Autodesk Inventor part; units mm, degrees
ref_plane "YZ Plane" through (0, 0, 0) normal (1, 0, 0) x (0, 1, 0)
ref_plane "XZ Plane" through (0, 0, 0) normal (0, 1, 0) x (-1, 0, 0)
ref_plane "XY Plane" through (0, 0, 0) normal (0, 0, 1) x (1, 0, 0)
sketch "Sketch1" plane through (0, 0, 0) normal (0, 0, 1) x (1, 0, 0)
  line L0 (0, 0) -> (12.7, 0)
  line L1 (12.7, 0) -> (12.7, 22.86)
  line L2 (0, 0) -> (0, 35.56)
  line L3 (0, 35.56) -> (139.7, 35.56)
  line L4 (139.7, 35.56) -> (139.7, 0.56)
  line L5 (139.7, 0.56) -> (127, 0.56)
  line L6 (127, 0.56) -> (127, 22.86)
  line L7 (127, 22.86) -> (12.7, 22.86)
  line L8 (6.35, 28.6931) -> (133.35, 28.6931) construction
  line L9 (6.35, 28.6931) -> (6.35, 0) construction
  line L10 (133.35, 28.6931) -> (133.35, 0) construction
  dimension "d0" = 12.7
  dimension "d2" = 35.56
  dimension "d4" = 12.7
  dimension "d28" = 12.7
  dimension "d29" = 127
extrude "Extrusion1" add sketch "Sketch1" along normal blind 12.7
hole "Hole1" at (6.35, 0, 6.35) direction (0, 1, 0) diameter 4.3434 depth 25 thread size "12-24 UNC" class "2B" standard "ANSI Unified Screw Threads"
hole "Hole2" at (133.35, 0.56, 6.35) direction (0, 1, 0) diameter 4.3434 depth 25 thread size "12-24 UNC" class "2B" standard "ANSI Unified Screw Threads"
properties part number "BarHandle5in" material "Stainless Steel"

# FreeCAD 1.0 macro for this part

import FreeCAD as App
import Part
import Sketcher
Q = App.Units.Quantity

doc = App.newDocument("Part")
body = doc.addObject("PartDesign::Body", "Body")

sketch1 = doc.addObject("Sketcher::SketchObject", "Sketch")
body.addObject(sketch1)
sketch1.AttachmentSupport = (doc.XY_Plane, [""])
sketch1.MapMode = "FlatFace"
sketch1.addGeometry(Part.LineSegment(App.Vector(0, 36, 0), App.Vector(0, 0, 0)), False)
sketch1.addGeometry(Part.LineSegment(App.Vector(0, 0, 0), App.Vector(13, 0, 0)), False)
sketch1.addGeometry(Part.LineSegment(App.Vector(13, 0, 0), App.Vector(13, 23, 0)), False)
sketch1.addGeometry(Part.LineSegment(App.Vector(13, 23, 0), App.Vector(127, 23, 0)), False)
sketch1.addGeometry(Part.LineSegment(App.Vector(127, 23, 0), App.Vector(127, 1, 0)), False)
sketch1.addGeometry(Part.LineSegment(App.Vector(127, 1, 0), App.Vector(140, 1, 0)), False)
sketch1.addGeometry(Part.LineSegment(App.Vector(140, 1, 0), App.Vector(140, 36, 0)), False)
sketch1.addGeometry(Part.LineSegment(App.Vector(140, 36, 0), App.Vector(0, 36, 0)), False)
sketch1.addConstraint(Sketcher.Constraint("Coincident", 0, 2, 1, 1))
sketch1.addConstraint(Sketcher.Constraint("Coincident", 1, 2, 2, 1))
sketch1.addConstraint(Sketcher.Constraint("Coincident", 2, 2, 3, 1))
sketch1.addConstraint(Sketcher.Constraint("Coincident", 3, 2, 4, 1))
sketch1.addConstraint(Sketcher.Constraint("Coincident", 4, 2, 5, 1))
sketch1.addConstraint(Sketcher.Constraint("Coincident", 5, 2, 6, 1))
sketch1.addConstraint(Sketcher.Constraint("Coincident", 6, 2, 7, 1))
sketch1.addConstraint(Sketcher.Constraint("Coincident", 7, 2, 0, 1))
sketch1.addConstraint(Sketcher.Constraint("Vertical", 0))
sketch1.addConstraint(Sketcher.Constraint("Horizontal", 1))
sketch1.addConstraint(Sketcher.Constraint("Vertical", 2))
sketch1.addConstraint(Sketcher.Constraint("Horizontal", 3))
sketch1.addConstraint(Sketcher.Constraint("Vertical", 4))
sketch1.addConstraint(Sketcher.Constraint("Horizontal", 5))
sketch1.addConstraint(Sketcher.Constraint("Vertical", 6))
sketch1.addConstraint(Sketcher.Constraint("Horizontal", 7))
sketch1.addConstraint(Sketcher.Constraint("Coincident", 0, 2, -1, 1))
sketch1.addConstraint(Sketcher.Constraint("Equal", 1, 5))
sketch1.addConstraint(Sketcher.Constraint("DistanceX", 1, 1, 1, 2, Q("0.5 in")))
sketch1.addConstraint(Sketcher.Constraint("DistanceY", 0, 2, 0, 1, Q("1.4 in")))
sketch1.addConstraint(Sketcher.Constraint("DistanceX", -1, 1, 3, 2, Q("5 in")))
sketch1.addConstraint(Sketcher.Constraint("DistanceY", 3, 2, 6, 2, Q("0.5 in")))
sketch1.addConstraint(Sketcher.Constraint("DistanceY", 4, 2, 4, 1, 22.3))
pad1 = doc.addObject("PartDesign::Pad", "Pad")
body.addObject(pad1)
pad1.Profile = sketch1
pad1.Length = Q("0.5 in")

sketch2 = doc.addObject("Sketcher::SketchObject", "Sketch001")
body.addObject(sketch2)
sketch2.AttachmentSupport = (doc.XZ_Plane, [""])
sketch2.MapMode = "FlatFace"
sketch2.addGeometry(Part.Circle(App.Vector(6.3, 6.3, 0), App.Vector(0, 0, 1), 2.2), False)
sketch2.addConstraint(Sketcher.Constraint("Diameter", 0, Q("0.171 in")))
sketch2.addConstraint(Sketcher.Constraint("DistanceX", -1, 1, 0, 3, Q("0.25 in")))
sketch2.addConstraint(Sketcher.Constraint("DistanceY", -1, 1, 0, 3, Q("0.25 in")))
doc.recompute()
hole = doc.addObject("PartDesign::Hole", "Hole")
body.addObject(hole)
hole.Profile = sketch2
hole.ThreadType = "None"
hole.Diameter = Q("0.171 in")
hole.DepthType = "Dimension"
hole.Depth = 25
hole.DrillPoint = "Flat"

sketch3 = doc.addObject("Sketcher::SketchObject", "Sketch002")
body.addObject(sketch3)
sketch3.AttachmentSupport = (doc.XZ_Plane, [""])
sketch3.MapMode = "FlatFace"
sketch3.AttachmentOffset = App.Placement(App.Vector(0, 0, -0.56), App.Rotation())
sketch3.addGeometry(Part.Circle(App.Vector(133.3, 6.3, 0), App.Vector(0, 0, 1), 2.2), False)
sketch3.addConstraint(Sketcher.Constraint("Diameter", 0, Q("0.171 in")))
sketch3.addConstraint(Sketcher.Constraint("DistanceX", -1, 1, 0, 3, Q("5.25 in")))
sketch3.addConstraint(Sketcher.Constraint("DistanceY", -1, 1, 0, 3, Q("0.25 in")))
doc.recompute()
hole2 = doc.addObject("PartDesign::Hole", "Hole001")
body.addObject(hole2)
hole2.Profile = sketch3
hole2.ThreadType = "None"
hole2.Diameter = Q("0.171 in")
hole2.DepthType = "Dimension"
hole2.Depth = 25
hole2.DrillPoint = "Flat"

doc.recompute()
